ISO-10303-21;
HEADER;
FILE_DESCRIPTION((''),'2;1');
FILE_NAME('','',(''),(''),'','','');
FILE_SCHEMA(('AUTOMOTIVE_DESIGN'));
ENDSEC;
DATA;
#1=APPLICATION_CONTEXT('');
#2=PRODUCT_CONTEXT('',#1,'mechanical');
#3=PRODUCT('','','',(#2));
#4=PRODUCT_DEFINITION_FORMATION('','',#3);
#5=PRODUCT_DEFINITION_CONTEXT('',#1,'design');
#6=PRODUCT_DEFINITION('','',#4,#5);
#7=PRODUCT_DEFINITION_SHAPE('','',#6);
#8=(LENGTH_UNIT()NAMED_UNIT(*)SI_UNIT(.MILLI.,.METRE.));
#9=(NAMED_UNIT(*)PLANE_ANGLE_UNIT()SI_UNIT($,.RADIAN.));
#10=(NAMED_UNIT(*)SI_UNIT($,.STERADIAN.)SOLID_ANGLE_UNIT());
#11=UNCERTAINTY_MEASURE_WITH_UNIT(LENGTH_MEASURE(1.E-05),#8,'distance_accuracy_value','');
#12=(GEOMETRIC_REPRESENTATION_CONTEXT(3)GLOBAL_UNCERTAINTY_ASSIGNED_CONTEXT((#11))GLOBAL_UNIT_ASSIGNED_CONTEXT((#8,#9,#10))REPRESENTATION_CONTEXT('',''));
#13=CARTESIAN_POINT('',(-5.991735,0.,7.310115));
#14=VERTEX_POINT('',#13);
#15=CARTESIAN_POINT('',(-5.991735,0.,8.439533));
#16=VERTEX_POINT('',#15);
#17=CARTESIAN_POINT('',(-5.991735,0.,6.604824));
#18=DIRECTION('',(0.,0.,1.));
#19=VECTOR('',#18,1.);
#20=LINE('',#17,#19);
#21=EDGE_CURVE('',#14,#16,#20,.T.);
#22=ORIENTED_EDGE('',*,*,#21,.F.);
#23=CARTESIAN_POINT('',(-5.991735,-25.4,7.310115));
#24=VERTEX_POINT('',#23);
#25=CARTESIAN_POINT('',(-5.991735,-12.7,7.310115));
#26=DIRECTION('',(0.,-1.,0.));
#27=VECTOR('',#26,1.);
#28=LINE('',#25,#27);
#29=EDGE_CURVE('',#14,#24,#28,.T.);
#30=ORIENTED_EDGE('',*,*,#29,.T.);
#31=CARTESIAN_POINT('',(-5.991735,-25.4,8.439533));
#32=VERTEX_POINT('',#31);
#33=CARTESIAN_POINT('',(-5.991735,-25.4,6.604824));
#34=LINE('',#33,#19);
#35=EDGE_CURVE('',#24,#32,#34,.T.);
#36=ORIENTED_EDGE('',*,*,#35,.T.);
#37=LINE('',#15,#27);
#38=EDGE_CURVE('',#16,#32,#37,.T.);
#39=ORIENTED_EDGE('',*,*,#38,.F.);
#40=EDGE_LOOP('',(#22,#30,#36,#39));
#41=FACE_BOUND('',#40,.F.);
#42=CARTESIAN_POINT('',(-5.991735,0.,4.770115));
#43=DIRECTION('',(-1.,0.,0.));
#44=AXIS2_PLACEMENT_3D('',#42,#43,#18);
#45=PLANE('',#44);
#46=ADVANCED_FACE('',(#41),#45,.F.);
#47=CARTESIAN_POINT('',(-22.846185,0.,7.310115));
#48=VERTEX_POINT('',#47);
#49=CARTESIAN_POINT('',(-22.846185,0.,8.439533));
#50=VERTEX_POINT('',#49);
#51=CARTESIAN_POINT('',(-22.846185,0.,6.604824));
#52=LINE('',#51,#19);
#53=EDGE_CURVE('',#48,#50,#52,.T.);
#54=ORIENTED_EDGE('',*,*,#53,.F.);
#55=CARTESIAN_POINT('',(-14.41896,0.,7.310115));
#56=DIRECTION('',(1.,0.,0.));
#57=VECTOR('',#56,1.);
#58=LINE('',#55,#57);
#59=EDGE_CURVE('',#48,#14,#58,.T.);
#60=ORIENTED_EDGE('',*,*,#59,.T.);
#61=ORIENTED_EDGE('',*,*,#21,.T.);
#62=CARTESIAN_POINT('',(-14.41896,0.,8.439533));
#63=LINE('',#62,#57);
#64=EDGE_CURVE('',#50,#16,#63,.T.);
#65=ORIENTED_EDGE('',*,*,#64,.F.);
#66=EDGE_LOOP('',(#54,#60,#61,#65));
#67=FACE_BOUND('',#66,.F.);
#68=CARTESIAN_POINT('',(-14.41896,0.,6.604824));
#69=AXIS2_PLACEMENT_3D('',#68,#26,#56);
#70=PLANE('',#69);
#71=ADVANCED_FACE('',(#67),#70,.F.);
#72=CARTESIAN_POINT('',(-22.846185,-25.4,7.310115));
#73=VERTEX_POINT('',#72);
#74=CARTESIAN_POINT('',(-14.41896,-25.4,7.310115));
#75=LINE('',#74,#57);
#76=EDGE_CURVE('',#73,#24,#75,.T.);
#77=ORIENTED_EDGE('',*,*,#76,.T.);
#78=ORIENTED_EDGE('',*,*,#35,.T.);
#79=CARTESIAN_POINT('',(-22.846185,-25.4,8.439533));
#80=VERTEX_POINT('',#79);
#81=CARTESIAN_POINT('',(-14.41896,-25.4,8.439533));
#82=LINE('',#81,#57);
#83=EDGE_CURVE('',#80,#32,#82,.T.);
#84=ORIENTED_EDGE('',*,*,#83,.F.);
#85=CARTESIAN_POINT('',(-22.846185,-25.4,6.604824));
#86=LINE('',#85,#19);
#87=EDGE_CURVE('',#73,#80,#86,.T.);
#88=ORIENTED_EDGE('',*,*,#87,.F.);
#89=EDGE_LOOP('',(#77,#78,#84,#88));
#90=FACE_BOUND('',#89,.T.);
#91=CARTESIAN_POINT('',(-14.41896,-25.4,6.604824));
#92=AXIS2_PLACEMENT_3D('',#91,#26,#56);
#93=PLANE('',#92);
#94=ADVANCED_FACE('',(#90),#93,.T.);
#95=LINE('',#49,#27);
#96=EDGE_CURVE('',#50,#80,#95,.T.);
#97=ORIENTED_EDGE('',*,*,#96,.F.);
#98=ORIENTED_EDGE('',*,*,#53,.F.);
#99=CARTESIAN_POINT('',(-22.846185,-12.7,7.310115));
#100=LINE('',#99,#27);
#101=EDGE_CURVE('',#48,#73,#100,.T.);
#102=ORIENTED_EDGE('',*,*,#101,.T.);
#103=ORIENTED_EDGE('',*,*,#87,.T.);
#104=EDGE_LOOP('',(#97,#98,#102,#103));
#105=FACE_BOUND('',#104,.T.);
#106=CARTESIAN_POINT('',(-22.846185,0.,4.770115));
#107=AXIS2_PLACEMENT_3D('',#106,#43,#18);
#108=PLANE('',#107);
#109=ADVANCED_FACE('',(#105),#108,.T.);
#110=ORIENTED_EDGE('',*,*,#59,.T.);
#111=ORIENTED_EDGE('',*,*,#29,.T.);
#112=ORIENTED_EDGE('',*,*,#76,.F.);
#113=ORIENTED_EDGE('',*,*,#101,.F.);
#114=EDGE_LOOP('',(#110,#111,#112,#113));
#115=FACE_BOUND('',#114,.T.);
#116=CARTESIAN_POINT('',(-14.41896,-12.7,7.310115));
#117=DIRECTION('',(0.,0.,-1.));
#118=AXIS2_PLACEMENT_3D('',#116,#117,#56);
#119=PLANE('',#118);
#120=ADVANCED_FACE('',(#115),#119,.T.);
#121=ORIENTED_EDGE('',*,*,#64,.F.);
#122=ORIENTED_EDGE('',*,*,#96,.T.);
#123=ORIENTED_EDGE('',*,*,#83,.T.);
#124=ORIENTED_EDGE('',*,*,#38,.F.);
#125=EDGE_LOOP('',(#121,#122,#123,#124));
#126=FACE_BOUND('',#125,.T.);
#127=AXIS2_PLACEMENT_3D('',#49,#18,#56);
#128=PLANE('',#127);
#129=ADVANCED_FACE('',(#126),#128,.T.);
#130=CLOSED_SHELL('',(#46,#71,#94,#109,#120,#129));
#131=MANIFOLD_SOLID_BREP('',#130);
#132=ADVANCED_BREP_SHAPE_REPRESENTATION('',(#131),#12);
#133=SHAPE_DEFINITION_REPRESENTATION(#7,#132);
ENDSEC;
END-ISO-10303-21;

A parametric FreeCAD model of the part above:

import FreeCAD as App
import Part
import Sketcher
from FreeCAD import Vector
Q = App.Units.Quantity


def add_polygon(sketch, points):
    """Adds a closed chain of lines whose ends are joined by coincident constraints."""
    first, n = sketch.GeometryCount, len(points)
    for a, b in zip(points, points[1:] + points[:1]):
        sketch.addGeometry(Part.LineSegment(App.Vector(*a, 0), App.Vector(*b, 0)), False)
    for i in range(n):
        sketch.addConstraint(Sketcher.Constraint("Coincident", first + i, 2, first + (i + 1) % n, 1))

doc = App.newDocument("Part")
body = doc.addObject("PartDesign::Body", "Body")

sketch1 = body.newObject("Sketcher::SketchObject", "Sketch")
sketch1.AttachmentSupport = (doc.getObject("XZ_Plane"), [""])
sketch1.MapMode = "FlatFace"
add_polygon(sketch1, [(-22.846185, 8.439533), (-22.846185, 4.770115), (-5.991735, 4.770115), (-5.991735, 8.439533)])
sketch1.addConstraint([
    Sketcher.Constraint("Vertical", 0),
    Sketcher.Constraint("Horizontal", 1),
    Sketcher.Constraint("Vertical", 2),
    Sketcher.Constraint("Horizontal", 3),
    Sketcher.Constraint("DistanceY", -1, 1, 0, 2, Q("0.1877998 in")),
    Sketcher.Constraint("DistanceX", 1, 1, 1, 2, 16.85445),
    Sketcher.Constraint("DistanceY", 0, 2, 0, 1, 3.669418),
    Sketcher.Constraint("DistanceX", 0, 2, -1, 1, 22.846185),
])
pad1 = body.newObject("PartDesign::Pad", "Pad")
pad1.Profile = sketch1
pad1.Length = Q("1 in")

sketch2 = body.newObject("Sketcher::SketchObject", "Sketch001")
sketch2.AttachmentSupport = (doc.getObject("XY_Plane"), [""])
sketch2.MapMode = "FlatFace"
sketch2.AttachmentOffset = App.Placement(Vector(0, 0, 0.1877998 * 25.4), App.Rotation())
add_polygon(sketch2, [(-22.846185, -25.4), (-22.846185, 0), (-5.991735, 0), (-5.991735, -25.4)])
sketch2.addConstraint([
    Sketcher.Constraint("Vertical", 0),
    Sketcher.Constraint("Horizontal", 1),
    Sketcher.Constraint("Vertical", 2),
    Sketcher.Constraint("Horizontal", 3),
    Sketcher.Constraint("PointOnObject", 0, 2, -1),
    Sketcher.Constraint("DistanceY", 0, 1, 0, 2, Q("1 in")),
    Sketcher.Constraint("DistanceX", 1, 1, 1, 2, 16.85445),
    Sketcher.Constraint("DistanceX", 0, 2, -1, 1, 22.846185),
])
pocket1 = body.newObject("PartDesign::Pocket", "Pocket")
pocket1.Profile = sketch2
pocket1.Length = Q("0.1 in")
pocket1.Reversed = True

doc.recompute()
